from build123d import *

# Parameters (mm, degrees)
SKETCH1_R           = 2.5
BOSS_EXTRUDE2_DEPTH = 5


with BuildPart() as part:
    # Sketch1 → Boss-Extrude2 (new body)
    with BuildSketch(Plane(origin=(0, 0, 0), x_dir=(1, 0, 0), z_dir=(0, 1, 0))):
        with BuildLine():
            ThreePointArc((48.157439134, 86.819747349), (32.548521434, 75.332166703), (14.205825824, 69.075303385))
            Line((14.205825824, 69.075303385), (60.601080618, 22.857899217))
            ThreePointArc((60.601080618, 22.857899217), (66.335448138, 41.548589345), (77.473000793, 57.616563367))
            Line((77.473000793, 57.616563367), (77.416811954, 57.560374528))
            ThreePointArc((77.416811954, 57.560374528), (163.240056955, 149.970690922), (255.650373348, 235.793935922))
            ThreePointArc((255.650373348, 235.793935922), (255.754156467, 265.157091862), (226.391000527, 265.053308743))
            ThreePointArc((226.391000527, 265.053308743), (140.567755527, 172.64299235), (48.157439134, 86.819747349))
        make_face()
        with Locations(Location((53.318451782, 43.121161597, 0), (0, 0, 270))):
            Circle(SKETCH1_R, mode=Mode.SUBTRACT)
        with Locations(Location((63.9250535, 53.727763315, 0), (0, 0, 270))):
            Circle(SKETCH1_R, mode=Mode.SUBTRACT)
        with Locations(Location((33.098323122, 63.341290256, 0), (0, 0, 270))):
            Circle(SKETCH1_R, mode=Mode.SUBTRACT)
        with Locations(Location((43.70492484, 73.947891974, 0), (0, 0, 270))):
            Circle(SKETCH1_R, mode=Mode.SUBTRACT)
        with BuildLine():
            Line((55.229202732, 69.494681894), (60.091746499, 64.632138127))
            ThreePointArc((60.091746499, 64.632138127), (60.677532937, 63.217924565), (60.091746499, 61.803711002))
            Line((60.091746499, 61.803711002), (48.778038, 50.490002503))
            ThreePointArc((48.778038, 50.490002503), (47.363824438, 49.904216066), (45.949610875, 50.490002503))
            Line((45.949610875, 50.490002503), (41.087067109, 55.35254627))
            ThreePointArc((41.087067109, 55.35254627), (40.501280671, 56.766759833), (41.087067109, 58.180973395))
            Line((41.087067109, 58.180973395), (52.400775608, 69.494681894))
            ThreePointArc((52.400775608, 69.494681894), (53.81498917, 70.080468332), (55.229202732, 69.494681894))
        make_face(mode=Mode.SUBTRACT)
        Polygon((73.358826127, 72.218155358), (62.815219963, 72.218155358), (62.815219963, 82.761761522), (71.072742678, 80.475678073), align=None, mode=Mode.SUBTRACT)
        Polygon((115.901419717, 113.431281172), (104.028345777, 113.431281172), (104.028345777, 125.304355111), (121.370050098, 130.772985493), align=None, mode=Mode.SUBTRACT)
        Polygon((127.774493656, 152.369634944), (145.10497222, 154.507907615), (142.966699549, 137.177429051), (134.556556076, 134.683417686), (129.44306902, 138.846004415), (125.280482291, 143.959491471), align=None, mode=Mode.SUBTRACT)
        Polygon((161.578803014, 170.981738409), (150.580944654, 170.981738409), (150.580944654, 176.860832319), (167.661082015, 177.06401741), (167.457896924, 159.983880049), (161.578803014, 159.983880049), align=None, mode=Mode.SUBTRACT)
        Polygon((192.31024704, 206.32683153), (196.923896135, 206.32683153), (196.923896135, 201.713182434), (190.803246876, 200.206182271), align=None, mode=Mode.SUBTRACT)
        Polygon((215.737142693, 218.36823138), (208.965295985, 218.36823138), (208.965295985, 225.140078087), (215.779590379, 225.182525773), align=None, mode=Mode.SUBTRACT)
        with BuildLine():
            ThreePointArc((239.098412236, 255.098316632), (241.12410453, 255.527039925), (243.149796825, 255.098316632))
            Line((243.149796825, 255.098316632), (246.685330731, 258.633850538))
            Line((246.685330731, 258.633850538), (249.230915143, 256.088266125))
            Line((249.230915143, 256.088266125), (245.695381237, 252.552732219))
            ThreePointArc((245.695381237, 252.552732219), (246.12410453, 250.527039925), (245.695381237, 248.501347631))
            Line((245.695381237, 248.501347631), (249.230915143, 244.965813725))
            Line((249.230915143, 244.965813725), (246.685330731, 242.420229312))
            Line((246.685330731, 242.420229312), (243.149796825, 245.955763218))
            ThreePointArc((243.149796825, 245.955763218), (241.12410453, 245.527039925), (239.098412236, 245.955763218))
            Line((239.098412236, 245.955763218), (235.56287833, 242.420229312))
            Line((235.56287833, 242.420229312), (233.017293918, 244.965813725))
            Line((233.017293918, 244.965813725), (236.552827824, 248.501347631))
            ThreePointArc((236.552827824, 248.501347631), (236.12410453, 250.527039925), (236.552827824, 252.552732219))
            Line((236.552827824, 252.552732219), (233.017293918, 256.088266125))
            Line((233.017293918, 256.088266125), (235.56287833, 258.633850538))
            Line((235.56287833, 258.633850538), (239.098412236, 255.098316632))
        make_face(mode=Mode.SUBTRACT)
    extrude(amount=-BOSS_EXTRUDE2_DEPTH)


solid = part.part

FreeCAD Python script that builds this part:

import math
import FreeCAD as App
import Part
import Sketcher

V = App.Vector
Q = App.Units.Quantity


def add_polygon(sketch, points):
    """Adds a closed chain of lines whose ends are joined by coincident constraints."""
    first, n = sketch.GeometryCount, len(points)
    for a, b in zip(points, points[1:] + points[:1]):
        sketch.addGeometry(Part.LineSegment(App.Vector(*a, 0), App.Vector(*b, 0)), False)
    for i in range(n):
        sketch.addConstraint(Sketcher.Constraint("Coincident", first + i, 2, first + (i + 1) % n, 1))

doc = App.newDocument("Part")
body = doc.addObject("PartDesign::Body", "Body")

# Sketch on XZ plane
sketch1 = body.newObject("Sketcher::SketchObject", "Sketch")
sketch1.AttachmentSupport = (doc.getObject("XZ_Plane"), [""])
sketch1.MapMode = "FlatFace"
sketch1.addGeometry(Part.ArcOfCircle(Part.Circle(V(3.07, -131.73, 0), V(0, 0, 1), 63.64), math.radians(45), math.radians(80)), False)  # 0
sketch1.addGeometry(Part.LineSegment(V(14.21, -69.08, 0), V(60.6, -22.86, 0)), False)  # 1
sketch1.addGeometry(Part.ArcOfCircle(Part.Circle(V(123.59, -13.76, 0), V(0, 0, 1), 63.64), math.radians(-172), math.radians(-136)), False)  # 2
sketch1.addGeometry(Part.LineSegment(V(77.47, -57.62, 0), V(77.42, -57.56, 0)), False)  # 3
sketch1.addGeometry(Part.ArcOfCircle(Part.Circle(V(1370.55, 1057.34, 0), V(0, 0, 1), 1707.4), math.radians(-139.23), math.radians(-130.77)), False)  # 4
sketch1.addGeometry(Part.ArcOfCircle(Part.Circle(V(241.12, -250.53, 0), V(0, 0, 1), 20.69), math.radians(-135), math.radians(45)), False)  # 5
sketch1.addGeometry(Part.ArcOfCircle(Part.Circle(V(-1066.74, -1379.95, 0), V(0, 0, 1), 1707.4), math.radians(40.77), math.radians(49.23)), False)  # 6
sketch1.addGeometry(Part.Circle(V(53.32, -43.12, 0), V(0, 0, 1), 2.5), False)  # 7
sketch1.addGeometry(Part.Circle(V(33.1, -63.34, 0), V(0, 0, 1), 2.5), False)  # 8
sketch1.addGeometry(Part.ArcOfCircle(Part.Circle(V(53.81, -68.08, 0), V(0, 0, 1), 2), math.radians(-135), math.radians(-45)), False)  # 9
sketch1.addGeometry(Part.LineSegment(V(55.23, -69.49, 0), V(60.09, -64.63, 0)), False)  # 10
sketch1.addGeometry(Part.ArcOfCircle(Part.Circle(V(58.68, -63.22, 0), V(0, 0, 1), 2), math.radians(-45), math.radians(45)), False)  # 11
sketch1.addGeometry(Part.LineSegment(V(60.09, -61.8, 0), V(48.78, -50.49, 0)), False)  # 12
sketch1.addGeometry(Part.ArcOfCircle(Part.Circle(V(47.36, -51.9, 0), V(0, 0, 1), 2), math.radians(45), math.radians(135)), False)  # 13
sketch1.addGeometry(Part.LineSegment(V(45.95, -50.49, 0), V(41.09, -55.35, 0)), False)  # 14
sketch1.addGeometry(Part.ArcOfCircle(Part.Circle(V(42.5, -56.77, 0), V(0, 0, 1), 2), math.radians(135), math.radians(225)), False)  # 15
sketch1.addGeometry(Part.LineSegment(V(41.09, -58.18, 0), V(52.4, -69.49, 0)), False)  # 16
sketch1.addGeometry(Part.Circle(V(63.93, -53.73, 0), V(0, 0, 1), 2.5), False)  # 17
sketch1.addGeometry(Part.Circle(V(43.7, -73.95, 0), V(0, 0, 1), 2.5), False)  # 18
add_polygon(sketch1, [(71.07, -80.48), (73.36, -72.22), (62.82, -72.22), (62.82, -82.76)])  # lines 19-22
add_polygon(sketch1, [(121.37, -130.77), (115.9, -113.43), (104.03, -113.43), (104.03, -125.3)])  # lines 23-26
add_polygon(sketch1, [(125.28, -143.96), (127.77, -152.37), (145.1, -154.51), (142.97, -137.18), (134.56, -134.68), (129.44, -138.85)])  # lines 27-32
add_polygon(sketch1, [(161.58, -159.98), (161.58, -170.98), (150.58, -170.98), (150.58, -176.86), (167.66, -177.06), (167.46, -159.98)])  # lines 33-38
add_polygon(sketch1, [(190.8, -200.21), (192.31, -206.33), (196.92, -206.33), (196.92, -201.71)])  # lines 39-42
add_polygon(sketch1, [(215.78, -225.18), (215.74, -218.37), (208.97, -218.37), (208.97, -225.14)])  # lines 43-46
sketch1.addGeometry(Part.LineSegment(V(235.56, -258.63, 0), V(239.1, -255.1, 0)), False)  # 47
sketch1.addGeometry(Part.ArcOfCircle(Part.Circle(V(241.12, -250.53, 0), V(0, 0, 1), 5), math.radians(-114), math.radians(-66)), False)  # 48
sketch1.addGeometry(Part.LineSegment(V(243.15, -255.1, 0), V(246.69, -258.63, 0)), False)  # 49
sketch1.addGeometry(Part.LineSegment(V(246.69, -258.63, 0), V(249.23, -256.09, 0)), False)  # 50
sketch1.addGeometry(Part.LineSegment(V(249.23, -256.09, 0), V(245.7, -252.55, 0)), False)  # 51
sketch1.addGeometry(Part.ArcOfCircle(Part.Circle(V(241.12, -250.53, 0), V(0, 0, 1), 5), math.radians(-24), math.radians(24)), False)  # 52
sketch1.addGeometry(Part.LineSegment(V(245.7, -248.5, 0), V(249.23, -244.97, 0)), False)  # 53
sketch1.addGeometry(Part.LineSegment(V(249.23, -244.97, 0), V(246.69, -242.42, 0)), False)  # 54
sketch1.addGeometry(Part.LineSegment(V(246.69, -242.42, 0), V(243.15, -245.96, 0)), False)  # 55
sketch1.addGeometry(Part.ArcOfCircle(Part.Circle(V(241.12, -250.53, 0), V(0, 0, 1), 5), math.radians(66), math.radians(114)), False)  # 56
sketch1.addGeometry(Part.LineSegment(V(239.1, -245.96, 0), V(235.56, -242.42, 0)), False)  # 57
sketch1.addGeometry(Part.LineSegment(V(235.56, -242.42, 0), V(233.02, -244.97, 0)), False)  # 58
sketch1.addGeometry(Part.LineSegment(V(233.02, -244.97, 0), V(236.55, -248.5, 0)), False)  # 59
sketch1.addGeometry(Part.ArcOfCircle(Part.Circle(V(241.12, -250.53, 0), V(0, 0, 1), 5), math.radians(156), math.radians(204)), False)  # 60
sketch1.addGeometry(Part.LineSegment(V(236.55, -252.55, 0), V(233.02, -256.09, 0)), False)  # 61
sketch1.addGeometry(Part.LineSegment(V(233.02, -256.09, 0), V(235.56, -258.63, 0)), False)  # 62
sketch1.addConstraint(Sketcher.Constraint("Coincident", 0, 2, 1, 1))
sketch1.addConstraint(Sketcher.Constraint("Coincident", 1, 2, 2, 1))
sketch1.addConstraint(Sketcher.Constraint("Coincident", 2, 2, 3, 1))
sketch1.addConstraint(Sketcher.Constraint("Coincident", 3, 2, 4, 1))
sketch1.addConstraint(Sketcher.Constraint("Coincident", 4, 2, 5, 2))
sketch1.addConstraint(Sketcher.Constraint("Coincident", 5, 1, 6, 1))
sketch1.addConstraint(Sketcher.Constraint("Coincident", 6, 2, 0, 1))
sketch1.addConstraint(Sketcher.Constraint("Tangent", 9, 2, 10, 1))
sketch1.addConstraint(Sketcher.Constraint("Tangent", 10, 2, 11, 1))
sketch1.addConstraint(Sketcher.Constraint("Tangent", 11, 2, 12, 1))
sketch1.addConstraint(Sketcher.Constraint("Tangent", 12, 2, 13, 1))
sketch1.addConstraint(Sketcher.Constraint("Tangent", 13, 2, 14, 1))
sketch1.addConstraint(Sketcher.Constraint("Tangent", 14, 2, 15, 1))
sketch1.addConstraint(Sketcher.Constraint("Tangent", 15, 2, 16, 1))
sketch1.addConstraint(Sketcher.Constraint("Tangent", 16, 2, 9, 1))
sketch1.addConstraint(Sketcher.Constraint("Coincident", 47, 2, 48, 1))
sketch1.addConstraint(Sketcher.Constraint("Coincident", 48, 2, 49, 1))
sketch1.addConstraint(Sketcher.Constraint("Coincident", 49, 2, 50, 1))
sketch1.addConstraint(Sketcher.Constraint("Coincident", 50, 2, 51, 1))
sketch1.addConstraint(Sketcher.Constraint("Coincident", 51, 2, 52, 1))
sketch1.addConstraint(Sketcher.Constraint("Coincident", 52, 2, 53, 1))
sketch1.addConstraint(Sketcher.Constraint("Coincident", 53, 2, 54, 1))
sketch1.addConstraint(Sketcher.Constraint("Coincident", 54, 2, 55, 1))
sketch1.addConstraint(Sketcher.Constraint("Coincident", 55, 2, 56, 1))
sketch1.addConstraint(Sketcher.Constraint("Coincident", 56, 2, 57, 1))
sketch1.addConstraint(Sketcher.Constraint("Coincident", 57, 2, 58, 1))
sketch1.addConstraint(Sketcher.Constraint("Coincident", 58, 2, 59, 1))
sketch1.addConstraint(Sketcher.Constraint("Coincident", 59, 2, 60, 1))
sketch1.addConstraint(Sketcher.Constraint("Coincident", 60, 2, 61, 1))
sketch1.addConstraint(Sketcher.Constraint("Coincident", 61, 2, 62, 1))
sketch1.addConstraint(Sketcher.Constraint("Coincident", 62, 2, 47, 1))
sketch1.addConstraint(Sketcher.Constraint("Horizontal", 20))
sketch1.addConstraint(Sketcher.Constraint("Vertical", 21))
sketch1.addConstraint(Sketcher.Constraint("Horizontal", 24))
sketch1.addConstraint(Sketcher.Constraint("Vertical", 25))
sketch1.addConstraint(Sketcher.Constraint("Vertical", 33))
sketch1.addConstraint(Sketcher.Constraint("Horizontal", 34))
sketch1.addConstraint(Sketcher.Constraint("Vertical", 35))
sketch1.addConstraint(Sketcher.Constraint("Horizontal", 38))
sketch1.addConstraint(Sketcher.Constraint("Horizontal", 40))
sketch1.addConstraint(Sketcher.Constraint("Vertical", 41))
sketch1.addConstraint(Sketcher.Constraint("Horizontal", 44))
sketch1.addConstraint(Sketcher.Constraint("Vertical", 45))
sketch1.addConstraint(Sketcher.Constraint("Coincident", 48, 3, 5, 3))
sketch1.addConstraint(Sketcher.Constraint("Coincident", 52, 3, 5, 3))
sketch1.addConstraint(Sketcher.Constraint("Coincident", 56, 3, 5, 3))
sketch1.addConstraint(Sketcher.Constraint("Coincident", 60, 3, 5, 3))
sketch1.addConstraint(Sketcher.Constraint("Equal", 0, 2))
sketch1.addConstraint(Sketcher.Constraint("Equal", 4, 6))
sketch1.addConstraint(Sketcher.Constraint("Equal", 7, 8))
sketch1.addConstraint(Sketcher.Constraint("Equal", 9, 11))
sketch1.addConstraint(Sketcher.Constraint("Equal", 11, 13))
sketch1.addConstraint(Sketcher.Constraint("Equal", 13, 15))
sketch1.addConstraint(Sketcher.Constraint("Equal", 8, 17))
sketch1.addConstraint(Sketcher.Constraint("Equal", 17, 18))
sketch1.addConstraint(Sketcher.Constraint("Equal", 48, 52))
sketch1.addConstraint(Sketcher.Constraint("Equal", 52, 56))
sketch1.addConstraint(Sketcher.Constraint("Equal", 56, 60))
sketch1.addConstraint(Sketcher.Constraint("Perpendicular", 3, 10))
sketch1.addConstraint(Sketcher.Constraint("Perpendicular", 10, 12))
sketch1.addConstraint(Sketcher.Constraint("Perpendicular", 12, 14))
sketch1.addConstraint(Sketcher.Constraint("Perpendicular", 14, 16))
sketch1.addConstraint(Sketcher.Constraint("Perpendicular", 16, 47))
sketch1.addConstraint(Sketcher.Constraint("Perpendicular", 47, 49))
sketch1.addConstraint(Sketcher.Constraint("Perpendicular", 49, 50))
sketch1.addConstraint(Sketcher.Constraint("Perpendicular", 50, 51))
sketch1.addConstraint(Sketcher.Constraint("Perpendicular", 51, 53))
sketch1.addConstraint(Sketcher.Constraint("Perpendicular", 53, 54))
sketch1.addConstraint(Sketcher.Constraint("Perpendicular", 54, 55))
sketch1.addConstraint(Sketcher.Constraint("Perpendicular", 55, 57))
sketch1.addConstraint(Sketcher.Constraint("Perpendicular", 57, 58))
sketch1.addConstraint(Sketcher.Constraint("Perpendicular", 58, 59))
sketch1.addConstraint(Sketcher.Constraint("Perpendicular", 59, 61))
sketch1.addConstraint(Sketcher.Constraint("Perpendicular", 61, 62))
sketch1.addConstraint(Sketcher.Constraint("Horizontal", 12, 2, 13, 2))
sketch1.addConstraint(Sketcher.Constraint("Horizontal", 47, 2, 48, 2))
sketch1.addConstraint(Sketcher.Constraint("Horizontal", 55, 2, 56, 2))
sketch1.addConstraint(Sketcher.Constraint("Horizontal", 54, 2, 57, 2))
sketch1.addConstraint(Sketcher.Constraint("Horizontal", 53, 2, 58, 2))
sketch1.addConstraint(Sketcher.Constraint("Horizontal", 51, 2, 60, 2))
sketch1.addConstraint(Sketcher.Constraint("Horizontal", 50, 2, 61, 2))
sketch1.addConstraint(Sketcher.Constraint("Vertical", 51, 2, 52, 2))
sketch1.addConstraint(Sketcher.Constraint("Vertical", 50, 2, 53, 2))
sketch1.addConstraint(Sketcher.Constraint("Vertical", 49, 2, 54, 2))
sketch1.addConstraint(Sketcher.Constraint("Equal", 20, 21))
sketch1.addConstraint(Sketcher.Constraint("Equal", 24, 25))
sketch1.addConstraint(Sketcher.Constraint("Equal", 34, 33))
sketch1.addConstraint(Sketcher.Constraint("Equal", 38, 35))
sketch1.addConstraint(Sketcher.Constraint("Equal", 40, 41))
sketch1.addConstraint(Sketcher.Constraint("Equal", 44, 45))
sketch1.addConstraint(Sketcher.Constraint("Equal", 19, 22))
sketch1.addConstraint(Sketcher.Constraint("Equal", 23, 26))
sketch1.addConstraint(Sketcher.Constraint("Equal", 28, 29))
sketch1.addConstraint(Sketcher.Constraint("Equal", 27, 30))
sketch1.addConstraint(Sketcher.Constraint("Equal", 31, 32))
sketch1.addConstraint(Sketcher.Constraint("Equal", 36, 37))
sketch1.addConstraint(Sketcher.Constraint("Equal", 39, 42))
sketch1.addConstraint(Sketcher.Constraint("Equal", 43, 46))
sketch1.addConstraint(Sketcher.Constraint("Equal", 49, 51))
sketch1.addConstraint(Sketcher.Constraint("Diameter", 7, Q("5 mm")))
sketch1.addConstraint(Sketcher.Constraint("Radius", 9, Q("2 mm")))
sketch1.addConstraint(Sketcher.Constraint("Radius", 48, Q("5 mm")))
sketch1.addConstraint(Sketcher.Constraint("Distance", 12, Q("16 mm")))
sketch1.addConstraint(Sketcher.Constraint("Distance", 47, Q("5 mm")))
sketch1.addConstraint(Sketcher.Constraint("Distance", 50, Q("3.6 mm")))
sketch1.addConstraint(Sketcher.Constraint("Radius", 4, Q("1707.396498 mm")))
sketch1.addConstraint(Sketcher.Constraint("Radius", 0, Q("63.63961 mm")))
sketch1.addConstraint(Sketcher.Constraint("DistanceX", -1, 1, 2, 2, Q("77.473001 mm")))
sketch1.addConstraint(Sketcher.Constraint("DistanceX", -1, 1, 5, 1, Q("226.391001 mm")))
sketch1.addConstraint(Sketcher.Constraint("Radius", 5, Q("20.690018 mm")))
sketch1.addConstraint(Sketcher.Constraint("DistanceX", 34, 2, 34, 1, Q("10.997858 mm")))
sketch1.addConstraint(Sketcher.Constraint("DistanceX", 40, 1, 40, 2, Q("4.613649 mm")))
sketch1.addConstraint(Sketcher.Constraint("DistanceX", -1, 1, 4, 3, Q("1370.551699 mm")))
sketch1.addConstraint(Sketcher.Constraint("DistanceY", 1, 2, -1, 1, Q("22.857899 mm")))
sketch1.addConstraint(Sketcher.Constraint("DistanceX", -1, 1, 29, 2, Q("142.9667 mm")))
sketch1.addConstraint(Sketcher.Constraint("Distance", 1, Q("65.48716 mm")))
sketch1.addConstraint(Sketcher.Constraint("Distance", 19, Q("8.56813 mm")))
sketch1.addConstraint(Sketcher.Constraint("Distance", 27, Q("8.772149 mm")))
sketch1.addConstraint(Sketcher.Constraint("Distance", 31, Q("6.593548 mm")))
sketch1.addConstraint(Sketcher.Constraint("DistanceX", 20, 2, 20, 1, Q("10.543606 mm")))
sketch1.addConstraint(Sketcher.Constraint("DistanceX", 24, 2, 24, 1, Q("11.873074 mm")))
sketch1.addConstraint(Sketcher.Constraint("DistanceX", 38, 2, 38, 1, Q("5.879094 mm")))
sketch1.addConstraint(Sketcher.Constraint("DistanceX", 44, 2, 44, 1, Q("6.771847 mm")))
sketch1.addConstraint(Sketcher.Constraint("DistanceY", -1, 1, 4, 3, Q("1057.340951 mm")))
sketch1.addConstraint(Sketcher.Constraint("DistanceY", 5, 3, -1, 1, Q("250.52704 mm")))
sketch1.addConstraint(Sketcher.Constraint("DistanceX", -1, 1, 7, 3, Q("53.318452 mm")))
sketch1.addConstraint(Sketcher.Constraint("DistanceY", 7, 3, -1, 1, Q("43.121162 mm")))
sketch1.addConstraint(Sketcher.Constraint("DistanceY", 8, 3, -1, 1, Q("63.34129 mm")))
sketch1.addConstraint(Sketcher.Constraint("DistanceX", -1, 1, 9, 3, Q("53.814989 mm")))
sketch1.addConstraint(Sketcher.Constraint("DistanceY", 9, 3, -1, 1, Q("68.080468 mm")))
sketch1.addConstraint(Sketcher.Constraint("DistanceY", 18, 3, -1, 1, Q("73.947892 mm")))
sketch1.addConstraint(Sketcher.Constraint("DistanceX", -1, 1, 1, 2, Q("60.601081 mm")))
sketch1.addConstraint(Sketcher.Constraint("DistanceX", -1, 1, 3, 2, Q("77.416812 mm")))
sketch1.addConstraint(Sketcher.Constraint("DistanceY", 5, 1, -1, 1, Q("265.053309 mm")))
sketch1.addConstraint(Sketcher.Constraint("DistanceX", -1, 1, 6, 2, Q("48.157439 mm")))
sketch1.addConstraint(Sketcher.Constraint("DistanceY", 10, 2, -1, 1, Q("64.632138 mm")))
sketch1.addConstraint(Sketcher.Constraint("DistanceX", -1, 1, 20, 2, Q("62.81522 mm")))
sketch1.addConstraint(Sketcher.Constraint("DistanceY", 21, 2, -1, 1, Q("82.761762 mm")))
sketch1.addConstraint(Sketcher.Constraint("DistanceX", -1, 1, 23, 2, Q("115.90142 mm")))
sketch1.addConstraint(Sketcher.Constraint("DistanceY", 23, 2, -1, 1, Q("113.431281 mm")))
sketch1.addConstraint(Sketcher.Constraint("DistanceX", -1, 1, 26, 2, Q("121.37005 mm")))
sketch1.addConstraint(Sketcher.Constraint("DistanceY", 29, 2, -1, 1, Q("137.177429 mm")))
sketch1.addConstraint(Sketcher.Constraint("DistanceX", -1, 1, 31, 2, Q("129.443069 mm")))
sketch1.addConstraint(Sketcher.Constraint("DistanceY", 32, 2, -1, 1, Q("143.959491 mm")))
sketch1.addConstraint(Sketcher.Constraint("DistanceY", 33, 2, -1, 1, Q("170.981738 mm")))
sketch1.addConstraint(Sketcher.Constraint("DistanceY", 39, 2, -1, 1, Q("206.326832 mm")))
sketch1.addConstraint(Sketcher.Constraint("DistanceY", 43, 2, -1, 1, Q("218.368231 mm")))
sketch1.addConstraint(Sketcher.Constraint("DistanceX", -1, 1, 46, 2, Q("215.77959 mm")))
sketch1.addConstraint(Sketcher.Constraint("Distance", 28, Q("17.461893 mm")))
sketch1.addConstraint(Sketcher.Constraint("Distance", 36, Q("17.081346 mm")))
sketch1.addConstraint(Sketcher.Constraint("Distance", 39, Q("6.303443 mm")))
sketch1.addConstraint(Sketcher.Constraint("Distance", 43, Q("6.814427 mm")))
sketch1.addConstraint(Sketcher.Constraint("DistanceX", -1, 1, 0, 3, Q("3.071106 mm")))
sketch1.addConstraint(Sketcher.Constraint("DistanceY", 0, 3, -1, 1, Q("131.733248 mm")))
sketch1.addConstraint(Sketcher.Constraint("DistanceX", -1, 1, 8, 3, Q("33.098323 mm")))
sketch1.addConstraint(Sketcher.Constraint("DistanceX", -1, 1, 17, 3, Q("63.925053 mm")))
sketch1.addConstraint(Sketcher.Constraint("DistanceY", 17, 3, -1, 1, Q("53.727763 mm")))
sketch1.addConstraint(Sketcher.Constraint("DistanceX", -1, 1, 18, 3, Q("43.704925 mm")))
sketch1.addConstraint(Sketcher.Constraint("DistanceX", -1, 1, 27, 2, Q("127.774494 mm")))
sketch1.addConstraint(Sketcher.Constraint("DistanceY", 27, 2, -1, 1, Q("152.369635 mm")))
sketch1.addConstraint(Sketcher.Constraint("DistanceX", -1, 1, 33, 2, Q("161.578803 mm")))
sketch1.addConstraint(Sketcher.Constraint("DistanceX", -1, 1, 39, 2, Q("192.310247 mm")))
pad1 = body.newObject("PartDesign::Pad", "Pad")
pad1.Profile = sketch1
pad1.Length = 5

doc.recompute()
